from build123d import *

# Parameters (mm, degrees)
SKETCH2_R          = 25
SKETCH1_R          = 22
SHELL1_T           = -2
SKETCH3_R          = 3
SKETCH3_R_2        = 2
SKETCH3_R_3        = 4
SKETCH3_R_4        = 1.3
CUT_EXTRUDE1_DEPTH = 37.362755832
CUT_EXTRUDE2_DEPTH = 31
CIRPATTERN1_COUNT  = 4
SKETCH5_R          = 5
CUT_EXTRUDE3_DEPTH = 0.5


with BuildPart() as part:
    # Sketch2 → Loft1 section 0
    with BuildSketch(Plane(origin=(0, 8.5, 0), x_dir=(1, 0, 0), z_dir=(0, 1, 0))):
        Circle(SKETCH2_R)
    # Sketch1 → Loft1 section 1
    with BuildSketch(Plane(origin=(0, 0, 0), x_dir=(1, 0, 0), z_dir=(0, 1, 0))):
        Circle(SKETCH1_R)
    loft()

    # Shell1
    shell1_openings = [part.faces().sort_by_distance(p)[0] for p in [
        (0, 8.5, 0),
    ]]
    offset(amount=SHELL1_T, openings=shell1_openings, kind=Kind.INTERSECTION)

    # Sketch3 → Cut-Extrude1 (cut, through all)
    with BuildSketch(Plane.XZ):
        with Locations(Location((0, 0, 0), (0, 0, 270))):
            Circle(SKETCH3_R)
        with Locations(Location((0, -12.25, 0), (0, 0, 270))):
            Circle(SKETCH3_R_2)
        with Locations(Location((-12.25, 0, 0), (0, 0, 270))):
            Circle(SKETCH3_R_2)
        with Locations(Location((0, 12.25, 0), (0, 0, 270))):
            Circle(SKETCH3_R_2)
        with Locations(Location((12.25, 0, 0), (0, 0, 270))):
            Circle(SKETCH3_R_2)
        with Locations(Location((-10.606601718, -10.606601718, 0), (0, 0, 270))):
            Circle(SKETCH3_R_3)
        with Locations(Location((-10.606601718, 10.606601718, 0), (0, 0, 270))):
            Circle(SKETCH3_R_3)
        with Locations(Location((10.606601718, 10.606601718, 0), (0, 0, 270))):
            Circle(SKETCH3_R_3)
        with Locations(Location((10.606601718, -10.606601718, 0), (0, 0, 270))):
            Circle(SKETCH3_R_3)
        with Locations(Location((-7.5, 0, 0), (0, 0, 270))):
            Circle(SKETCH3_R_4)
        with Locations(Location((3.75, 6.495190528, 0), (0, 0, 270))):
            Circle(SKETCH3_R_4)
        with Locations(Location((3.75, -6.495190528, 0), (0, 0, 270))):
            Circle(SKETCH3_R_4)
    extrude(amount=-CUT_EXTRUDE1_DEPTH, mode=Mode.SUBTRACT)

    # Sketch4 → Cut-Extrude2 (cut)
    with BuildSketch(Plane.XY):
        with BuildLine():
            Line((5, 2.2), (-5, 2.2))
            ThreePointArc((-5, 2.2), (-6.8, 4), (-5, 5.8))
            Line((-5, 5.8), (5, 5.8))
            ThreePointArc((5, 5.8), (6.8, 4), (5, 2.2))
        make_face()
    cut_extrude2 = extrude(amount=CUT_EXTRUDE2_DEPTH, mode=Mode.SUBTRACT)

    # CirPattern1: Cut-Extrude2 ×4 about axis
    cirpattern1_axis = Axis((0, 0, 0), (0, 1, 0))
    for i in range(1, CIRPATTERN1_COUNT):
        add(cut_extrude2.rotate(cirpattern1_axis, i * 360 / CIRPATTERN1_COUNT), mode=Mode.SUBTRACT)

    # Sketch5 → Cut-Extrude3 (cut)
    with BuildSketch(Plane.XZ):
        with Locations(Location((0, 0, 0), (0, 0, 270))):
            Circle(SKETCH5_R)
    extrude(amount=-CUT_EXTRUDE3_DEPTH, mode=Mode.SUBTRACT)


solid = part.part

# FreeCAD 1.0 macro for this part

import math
import FreeCAD as App
import Part
import Sketcher
Q = App.Units.Quantity


def faces_at(feature, points):
    """Names of the faces that lie closest to the given points."""
    faces = feature.Shape.Faces
    near = lambda p: min(range(len(faces)), key=lambda i: faces[i].distToShape(Part.Vertex(*p))[0])
    return sorted({f"Face{near(p) + 1}" for p in points})

doc = App.newDocument("Part")
body = doc.addObject("PartDesign::Body", "Body")

# Sketch on XZ plane
sketch1 = body.newObject("Sketcher::SketchObject", "Sketch")
sketch1.AttachmentSupport = (doc.getObject("XZ_Plane"), [""])
sketch1.MapMode = "FlatFace"
sketch1.AttachmentOffset = App.Placement(App.Vector(0, 0, -8.5), App.Rotation())
sketch1.addGeometry(Part.Circle(App.Vector(0, 0, 0), App.Vector(0, 0, 1), 25), False)
sketch1.addConstraint(Sketcher.Constraint("Coincident", 0, 3, -1, 1))
sketch1.addConstraint(Sketcher.Constraint("Diameter", 0, Q("50 mm")))

# Sketch on XZ plane
sketch2 = body.newObject("Sketcher::SketchObject", "Sketch001")
sketch2.AttachmentSupport = (doc.getObject("XZ_Plane"), [""])
sketch2.MapMode = "FlatFace"
sketch2.addGeometry(Part.Circle(App.Vector(0, 0, 0), App.Vector(0, 0, 1), 22), False)
sketch2.addConstraint(Sketcher.Constraint("Coincident", 0, 3, -1, 1))
sketch2.addConstraint(Sketcher.Constraint("Diameter", 0, Q("44 mm")))

additiveloft = body.newObject("PartDesign::AdditiveLoft", "AdditiveLoft")
additiveloft.Profile = sketch1
additiveloft.Sections = [sketch2]
doc.recompute()

thickness = body.newObject("PartDesign::Thickness", "Thickness")
thickness.Base = (additiveloft, faces_at(additiveloft, [(0, 8.5, 0)]))
thickness.Value = 2
thickness.Reversed = True
thickness.Join = "Intersection"

# Sketch on XZ plane
sketch3 = body.newObject("Sketcher::SketchObject", "Sketch002")
sketch3.AttachmentSupport = (doc.getObject("XZ_Plane"), [""])
sketch3.MapMode = "FlatFace"
sketch3.addGeometry(Part.Circle(App.Vector(0, 0, 0), App.Vector(0, 0, 1), 3), False)
sketch3.addGeometry(Part.Circle(App.Vector(0, -12.2, 0), App.Vector(0, 0, 1), 2), False)
sketch3.addGeometry(Part.Circle(App.Vector(-12.2, 0, 0), App.Vector(0, 0, 1), 2), False)
sketch3.addGeometry(Part.Circle(App.Vector(0, 12.2, 0), App.Vector(0, 0, 1), 2), False)
sketch3.addGeometry(Part.Circle(App.Vector(12.2, 0, 0), App.Vector(0, 0, 1), 2), False)
sketch3.addGeometry(Part.Circle(App.Vector(-10.6, -10.6, 0), App.Vector(0, 0, 1), 4), False)
sketch3.addGeometry(Part.Circle(App.Vector(-10.6, 10.6, 0), App.Vector(0, 0, 1), 4), False)
sketch3.addGeometry(Part.Circle(App.Vector(10.6, 10.6, 0), App.Vector(0, 0, 1), 4), False)
sketch3.addGeometry(Part.Circle(App.Vector(10.6, -10.6, 0), App.Vector(0, 0, 1), 4), False)
sketch3.addGeometry(Part.Circle(App.Vector(-7.5, 0, 0), App.Vector(0, 0, 1), 1.3), False)
sketch3.addGeometry(Part.Circle(App.Vector(3.8, 6.5, 0), App.Vector(0, 0, 1), 1.3), False)
sketch3.addGeometry(Part.Circle(App.Vector(3.8, -6.5, 0), App.Vector(0, 0, 1), 1.3), False)
sketch3.addConstraint(Sketcher.Constraint("Coincident", 0, 3, -1, 1))
sketch3.addConstraint(Sketcher.Constraint("Equal", 1, 2))
sketch3.addConstraint(Sketcher.Constraint("Equal", 2, 3))
sketch3.addConstraint(Sketcher.Constraint("Equal", 3, 4))
sketch3.addConstraint(Sketcher.Constraint("Equal", 5, 6))
sketch3.addConstraint(Sketcher.Constraint("Equal", 6, 7))
sketch3.addConstraint(Sketcher.Constraint("Equal", 7, 8))
sketch3.addConstraint(Sketcher.Constraint("Equal", 9, 10))
sketch3.addConstraint(Sketcher.Constraint("Equal", 10, 11))
sketch3.addConstraint(Sketcher.Constraint("Symmetric", 1, 3, 3, 3, -1, 1))
sketch3.addConstraint(Sketcher.Constraint("Symmetric", 2, 3, 4, 3, -1, 1))
sketch3.addConstraint(Sketcher.Constraint("Symmetric", 5, 3, 7, 3, -1, 1))
sketch3.addConstraint(Sketcher.Constraint("Symmetric", 6, 3, 8, 3, -1, 1))
sketch3.addConstraint(Sketcher.Constraint("Symmetric", 6, 3, 7, 3, -2))
sketch3.addConstraint(Sketcher.Constraint("Symmetric", 10, 3, 11, 3, -1))
sketch3.addConstraint(Sketcher.Constraint("PointOnObject", 1, 3, -2))
sketch3.addConstraint(Sketcher.Constraint("PointOnObject", 2, 3, -1))
sketch3.addConstraint(Sketcher.Constraint("PointOnObject", 9, 3, -1))
sketch3.addConstraint(Sketcher.Constraint("Diameter", 0, Q("6 mm")))
sketch3.addConstraint(Sketcher.Constraint("Diameter", 1, Q("4 mm")))
sketch3.addConstraint(Sketcher.Constraint("Diameter", 5, Q("8 mm")))
sketch3.addConstraint(Sketcher.Constraint("Diameter", 9, Q("2.6 mm")))
sketch3.addConstraint(Sketcher.Constraint("DistanceX", 9, 3, -1, 1, Q("7.5 mm")))
sketch3.addConstraint(Sketcher.Constraint("DistanceY", 1, 3, 3, 3, Q("24.5 mm")))
sketch3.addConstraint(Sketcher.Constraint("DistanceX", 2, 3, 4, 3, Q("24.5 mm")))
sketch3.addConstraint(Sketcher.Constraint("DistanceX", 10, 3, 4, 3, Q("8.5 mm")))
sketch3.addConstraint(Sketcher.Constraint("DistanceX", 5, 3, -1, 1, Q("10.606602 mm")))
sketch3.addConstraint(Sketcher.Constraint("DistanceY", 5, 3, -1, 1, Q("10.606602 mm")))
sketch3.addConstraint(Sketcher.Constraint("DistanceY", -1, 1, 10, 3, Q("6.495191 mm")))
pocket1 = body.newObject("PartDesign::Pocket", "Pocket")
pocket1.Profile = sketch3
pocket1.Type = "ThroughAll"

# Sketch on XY plane
sketch4 = body.newObject("Sketcher::SketchObject", "Sketch003")
sketch4.AttachmentSupport = (doc.getObject("XY_Plane"), [""])
sketch4.MapMode = "FlatFace"
sketch4.addGeometry(Part.LineSegment(App.Vector(-5, 2.2, 0), App.Vector(5, 2.2, 0)), False)
sketch4.addGeometry(Part.ArcOfCircle(Part.Circle(App.Vector(5, 4, 0), App.Vector(0, 0, 1), 1.8), math.radians(-90), math.radians(90)), False)
sketch4.addGeometry(Part.LineSegment(App.Vector(5, 5.8, 0), App.Vector(-5, 5.8, 0)), False)
sketch4.addGeometry(Part.ArcOfCircle(Part.Circle(App.Vector(-5, 4, 0), App.Vector(0, 0, 1), 1.8), math.radians(90), math.radians(270)), False)
sketch4.addConstraint(Sketcher.Constraint("Tangent", 0, 2, 1, 1))
sketch4.addConstraint(Sketcher.Constraint("Tangent", 1, 2, 2, 1))
sketch4.addConstraint(Sketcher.Constraint("Tangent", 2, 2, 3, 1))
sketch4.addConstraint(Sketcher.Constraint("Tangent", 3, 2, 0, 1))
sketch4.addConstraint(Sketcher.Constraint("Horizontal", 0))
sketch4.addConstraint(Sketcher.Constraint("Horizontal", 2))
sketch4.addConstraint(Sketcher.Constraint("Radius", 1, Q("1.8 mm")))
sketch4.addConstraint(Sketcher.Constraint("DistanceX", 0, 1, 0, 2, Q("10 mm")))
sketch4.addConstraint(Sketcher.Constraint("DistanceX", -1, 1, 1, 3, Q("5 mm")))
sketch4.addConstraint(Sketcher.Constraint("DistanceY", -1, 1, 1, 3, Q("4 mm")))
pocket2 = body.newObject("PartDesign::Pocket", "Pocket001")
pocket2.Profile = sketch4
pocket2.Length = 31
pocket2.Reversed = True
doc.recompute()

polarpattern = body.newObject("PartDesign::PolarPattern", "PolarPattern")
polarpattern.Originals = [pocket2]
polarpattern.Axis = (doc.getObject("Y_Axis"), [""])
polarpattern.Angle = 360
polarpattern.Occurrences = 4
body.Tip = polarpattern

# Sketch on XZ plane
sketch5 = body.newObject("Sketcher::SketchObject", "Sketch004")
sketch5.AttachmentSupport = (doc.getObject("XZ_Plane"), [""])
sketch5.MapMode = "FlatFace"
sketch5.addGeometry(Part.Circle(App.Vector(0, 0, 0), App.Vector(0, 0, 1), 5), False)
sketch5.addConstraint(Sketcher.Constraint("Coincident", 0, 3, -1, 1))
sketch5.addConstraint(Sketcher.Constraint("Diameter", 0, Q("10 mm")))
pocket3 = body.newObject("PartDesign::Pocket", "Pocket002")
pocket3.Profile = sketch5
pocket3.Length = 0.5

doc.recompute()
